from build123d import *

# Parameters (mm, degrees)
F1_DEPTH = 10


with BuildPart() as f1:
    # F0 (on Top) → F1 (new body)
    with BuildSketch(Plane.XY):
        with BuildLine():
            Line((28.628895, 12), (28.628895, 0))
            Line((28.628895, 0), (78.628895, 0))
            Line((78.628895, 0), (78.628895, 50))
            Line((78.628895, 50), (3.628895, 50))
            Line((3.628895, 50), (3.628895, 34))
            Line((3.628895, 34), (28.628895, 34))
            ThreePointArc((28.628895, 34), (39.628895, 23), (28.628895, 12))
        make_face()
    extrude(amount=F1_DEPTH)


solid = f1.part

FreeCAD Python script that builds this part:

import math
import FreeCAD as App
import Part
import Sketcher

V = App.Vector
Q = App.Units.Quantity

doc = App.newDocument("Part")
body = doc.addObject("PartDesign::Body", "Body")

sketch1 = body.newObject("Sketcher::SketchObject", "Sketch")
sketch1.AttachmentSupport = (doc.getObject("XY_Plane"), [""])
sketch1.MapMode = "FlatFace"
sketch1.addGeometry([
    Part.LineSegment(V(28.628895, 12, 0), V(28.628895, 0, 0)),
    Part.LineSegment(V(28.628895, 0, 0), V(78.628895, 0, 0)),
    Part.LineSegment(V(78.628895, 0, 0), V(78.628895, 50, 0)),
    Part.LineSegment(V(78.628895, 50, 0), V(3.628895, 50, 0)),
    Part.LineSegment(V(3.628895, 50, 0), V(3.628895, 34, 0)),
    Part.LineSegment(V(3.628895, 34, 0), V(28.628895, 34, 0)),
    Part.ArcOfCircle(Part.Circle(V(28.628895, 23, 0), V(0, 0, 1), 11), math.radians(-90), math.radians(90)),
], False)
sketch1.addConstraint([
    Sketcher.Constraint("Coincident", 0, 2, 1, 1),
    Sketcher.Constraint("Coincident", 1, 2, 2, 1),
    Sketcher.Constraint("Coincident", 2, 2, 3, 1),
    Sketcher.Constraint("Coincident", 3, 2, 4, 1),
    Sketcher.Constraint("Coincident", 4, 2, 5, 1),
    Sketcher.Constraint("Tangent", 5, 2, 6, 2),
    Sketcher.Constraint("Coincident", 6, 1, 0, 1),
    Sketcher.Constraint("Vertical", 0),
    Sketcher.Constraint("Horizontal", 1),
    Sketcher.Constraint("Vertical", 2),
    Sketcher.Constraint("Horizontal", 3),
    Sketcher.Constraint("Vertical", 4),
    Sketcher.Constraint("Horizontal", 5),
    Sketcher.Constraint("PointOnObject", 0, 2, -1),
    Sketcher.Constraint("Vertical", 6, 3, 0, 2),
    Sketcher.Constraint("Equal", 1, 2),
    Sketcher.Constraint("Radius", 6, Q("11 mm")),
    Sketcher.Constraint("DistanceX", 1, 1, 1, 2, Q("50 mm")),
    Sketcher.Constraint("DistanceX", 3, 2, 3, 1, Q("75 mm")),
    Sketcher.Constraint("DistanceY", 0, 2, 0, 1, Q("12 mm")),
    Sketcher.Constraint("DistanceX", -1, 1, 6, 3, Q("28.628895 mm")),
])
pad1 = body.newObject("PartDesign::Pad", "Pad")
pad1.Profile = sketch1
pad1.Length = 10

doc.recompute()
